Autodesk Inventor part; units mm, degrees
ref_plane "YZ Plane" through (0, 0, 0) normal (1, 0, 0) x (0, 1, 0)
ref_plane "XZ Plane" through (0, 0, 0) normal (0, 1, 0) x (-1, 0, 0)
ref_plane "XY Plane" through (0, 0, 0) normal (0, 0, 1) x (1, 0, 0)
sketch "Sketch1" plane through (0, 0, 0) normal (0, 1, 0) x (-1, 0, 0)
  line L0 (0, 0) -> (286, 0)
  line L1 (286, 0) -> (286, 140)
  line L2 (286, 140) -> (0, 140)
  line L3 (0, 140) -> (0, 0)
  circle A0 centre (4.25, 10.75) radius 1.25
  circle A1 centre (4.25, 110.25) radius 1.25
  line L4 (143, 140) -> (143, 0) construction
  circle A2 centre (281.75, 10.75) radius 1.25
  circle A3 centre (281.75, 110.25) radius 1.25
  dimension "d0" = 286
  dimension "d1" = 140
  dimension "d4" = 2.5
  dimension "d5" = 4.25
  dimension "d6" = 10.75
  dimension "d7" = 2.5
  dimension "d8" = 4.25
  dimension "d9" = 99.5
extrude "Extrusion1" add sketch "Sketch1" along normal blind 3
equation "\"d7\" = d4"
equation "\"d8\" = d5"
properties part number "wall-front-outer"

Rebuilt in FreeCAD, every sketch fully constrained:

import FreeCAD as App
import Part
import Sketcher
Q = App.Units.Quantity


def add_polygon(sketch, points):
    """Adds a closed chain of lines whose ends are joined by coincident constraints."""
    first, n = sketch.GeometryCount, len(points)
    for a, b in zip(points, points[1:] + points[:1]):
        sketch.addGeometry(Part.LineSegment(App.Vector(*a, 0), App.Vector(*b, 0)), False)
    for i in range(n):
        sketch.addConstraint(Sketcher.Constraint("Coincident", first + i, 2, first + (i + 1) % n, 1))

doc = App.newDocument("Part")
body = doc.addObject("PartDesign::Body", "Body")

sketch1 = doc.addObject("Sketcher::SketchObject", "Sketch")
body.addObject(sketch1)
sketch1.AttachmentSupport = (doc.XZ_Plane, [""])
sketch1.MapMode = "FlatFace"
add_polygon(sketch1, [(0, 140), (0, 0), (-286, 0), (-286, 140)])
sketch1.addGeometry(Part.Circle(App.Vector(-4.25, 10.75, 0), App.Vector(0, 0, 1), 1.25), False)
sketch1.addGeometry(Part.Circle(App.Vector(-281.75, 10.75, 0), App.Vector(0, 0, 1), 1.25), False)
sketch1.addGeometry(Part.Circle(App.Vector(-4.25, 110.25, 0), App.Vector(0, 0, 1), 1.25), False)
sketch1.addGeometry(Part.Circle(App.Vector(-281.75, 110.25, 0), App.Vector(0, 0, 1), 1.25), False)
sketch1.addConstraint([
    Sketcher.Constraint("Vertical", 0),
    Sketcher.Constraint("Horizontal", 1),
    Sketcher.Constraint("Vertical", 2),
    Sketcher.Constraint("Horizontal", 3),
    Sketcher.Constraint("Coincident", 0, 2, -1, 1),
    Sketcher.Constraint("Equal", 4, 5),
    Sketcher.Constraint("Equal", 5, 6),
    Sketcher.Constraint("Equal", 6, 7),
    Sketcher.Constraint("Horizontal", 4, 3, 5, 3),
    Sketcher.Constraint("Horizontal", 6, 3, 7, 3),
    Sketcher.Constraint("Vertical", 4, 3, 6, 3),
    Sketcher.Constraint("Vertical", 5, 3, 7, 3),
    Sketcher.Constraint("Diameter", 4, Q("2.5 mm")),
    Sketcher.Constraint("DistanceX", 1, 2, 1, 1, Q("286 mm")),
    Sketcher.Constraint("DistanceY", 0, 2, 0, 1, Q("140 mm")),
    Sketcher.Constraint("DistanceY", 4, 3, 6, 3, Q("99.5 mm")),
    Sketcher.Constraint("DistanceX", 4, 3, -1, 1, Q("4.25 mm")),
    Sketcher.Constraint("DistanceY", -1, 1, 4, 3, Q("10.75 mm")),
    Sketcher.Constraint("DistanceX", 1, 2, 5, 3, Q("4.25 mm")),
])
pad1 = doc.addObject("PartDesign::Pad", "Pad")
body.addObject(pad1)
pad1.Profile = sketch1
pad1.Length = 3
pad1.Reversed = True

doc.recompute()
